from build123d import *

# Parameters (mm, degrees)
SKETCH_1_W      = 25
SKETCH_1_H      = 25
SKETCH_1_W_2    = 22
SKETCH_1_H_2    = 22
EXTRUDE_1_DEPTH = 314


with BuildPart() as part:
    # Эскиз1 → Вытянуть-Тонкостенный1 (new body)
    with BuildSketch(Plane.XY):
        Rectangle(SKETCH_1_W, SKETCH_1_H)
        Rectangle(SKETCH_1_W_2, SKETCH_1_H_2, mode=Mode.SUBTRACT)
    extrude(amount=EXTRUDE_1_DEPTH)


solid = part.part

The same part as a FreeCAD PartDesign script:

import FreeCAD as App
import Part
import Sketcher


def add_polygon(sketch, points):
    """Adds a closed chain of lines whose ends are joined by coincident constraints."""
    first, n = sketch.GeometryCount, len(points)
    for a, b in zip(points, points[1:] + points[:1]):
        sketch.addGeometry(Part.LineSegment(App.Vector(*a, 0), App.Vector(*b, 0)), False)
    for i in range(n):
        sketch.addConstraint(Sketcher.Constraint("Coincident", first + i, 2, first + (i + 1) % n, 1))

doc = App.newDocument("Part")
body = doc.addObject("PartDesign::Body", "Body")

# Sketch on XY plane
sketch1 = doc.addObject("Sketcher::SketchObject", "Sketch")
body.addObject(sketch1)
sketch1.AttachmentSupport = (doc.XY_Plane, [""])
sketch1.MapMode = "FlatFace"
add_polygon(sketch1, [(-12, 12), (-12, -12), (12, -12), (12, 12)])  # lines 0-3
add_polygon(sketch1, [(11, -11), (-11, -11), (-11, 11), (11, 11)])  # lines 4-7
sketch1.addConstraint(Sketcher.Constraint("Vertical", 0))
sketch1.addConstraint(Sketcher.Constraint("Horizontal", 1))
sketch1.addConstraint(Sketcher.Constraint("Vertical", 2))
sketch1.addConstraint(Sketcher.Constraint("Horizontal", 3))
sketch1.addConstraint(Sketcher.Constraint("Horizontal", 4))
sketch1.addConstraint(Sketcher.Constraint("Vertical", 5))
sketch1.addConstraint(Sketcher.Constraint("Horizontal", 6))
sketch1.addConstraint(Sketcher.Constraint("Vertical", 7))
sketch1.addConstraint(Sketcher.Constraint("Symmetric", 0, 2, 2, 2, -1, 1))
sketch1.addConstraint(Sketcher.Constraint("Symmetric", 4, 2, 6, 2, -1, 1))
sketch1.addConstraint(Sketcher.Constraint("Equal", 3, 0))
sketch1.addConstraint(Sketcher.Constraint("Equal", 6, 5))
sketch1.addConstraint(Sketcher.Constraint("DistanceX", 1, 1, 1, 2, 25.0))
sketch1.addConstraint(Sketcher.Constraint("DistanceX", 4, 2, 4, 1, 22.0))
pad1 = doc.addObject("PartDesign::Pad", "Pad")
body.addObject(pad1)
pad1.Profile = sketch1
pad1.Length = 314

doc.recompute()
